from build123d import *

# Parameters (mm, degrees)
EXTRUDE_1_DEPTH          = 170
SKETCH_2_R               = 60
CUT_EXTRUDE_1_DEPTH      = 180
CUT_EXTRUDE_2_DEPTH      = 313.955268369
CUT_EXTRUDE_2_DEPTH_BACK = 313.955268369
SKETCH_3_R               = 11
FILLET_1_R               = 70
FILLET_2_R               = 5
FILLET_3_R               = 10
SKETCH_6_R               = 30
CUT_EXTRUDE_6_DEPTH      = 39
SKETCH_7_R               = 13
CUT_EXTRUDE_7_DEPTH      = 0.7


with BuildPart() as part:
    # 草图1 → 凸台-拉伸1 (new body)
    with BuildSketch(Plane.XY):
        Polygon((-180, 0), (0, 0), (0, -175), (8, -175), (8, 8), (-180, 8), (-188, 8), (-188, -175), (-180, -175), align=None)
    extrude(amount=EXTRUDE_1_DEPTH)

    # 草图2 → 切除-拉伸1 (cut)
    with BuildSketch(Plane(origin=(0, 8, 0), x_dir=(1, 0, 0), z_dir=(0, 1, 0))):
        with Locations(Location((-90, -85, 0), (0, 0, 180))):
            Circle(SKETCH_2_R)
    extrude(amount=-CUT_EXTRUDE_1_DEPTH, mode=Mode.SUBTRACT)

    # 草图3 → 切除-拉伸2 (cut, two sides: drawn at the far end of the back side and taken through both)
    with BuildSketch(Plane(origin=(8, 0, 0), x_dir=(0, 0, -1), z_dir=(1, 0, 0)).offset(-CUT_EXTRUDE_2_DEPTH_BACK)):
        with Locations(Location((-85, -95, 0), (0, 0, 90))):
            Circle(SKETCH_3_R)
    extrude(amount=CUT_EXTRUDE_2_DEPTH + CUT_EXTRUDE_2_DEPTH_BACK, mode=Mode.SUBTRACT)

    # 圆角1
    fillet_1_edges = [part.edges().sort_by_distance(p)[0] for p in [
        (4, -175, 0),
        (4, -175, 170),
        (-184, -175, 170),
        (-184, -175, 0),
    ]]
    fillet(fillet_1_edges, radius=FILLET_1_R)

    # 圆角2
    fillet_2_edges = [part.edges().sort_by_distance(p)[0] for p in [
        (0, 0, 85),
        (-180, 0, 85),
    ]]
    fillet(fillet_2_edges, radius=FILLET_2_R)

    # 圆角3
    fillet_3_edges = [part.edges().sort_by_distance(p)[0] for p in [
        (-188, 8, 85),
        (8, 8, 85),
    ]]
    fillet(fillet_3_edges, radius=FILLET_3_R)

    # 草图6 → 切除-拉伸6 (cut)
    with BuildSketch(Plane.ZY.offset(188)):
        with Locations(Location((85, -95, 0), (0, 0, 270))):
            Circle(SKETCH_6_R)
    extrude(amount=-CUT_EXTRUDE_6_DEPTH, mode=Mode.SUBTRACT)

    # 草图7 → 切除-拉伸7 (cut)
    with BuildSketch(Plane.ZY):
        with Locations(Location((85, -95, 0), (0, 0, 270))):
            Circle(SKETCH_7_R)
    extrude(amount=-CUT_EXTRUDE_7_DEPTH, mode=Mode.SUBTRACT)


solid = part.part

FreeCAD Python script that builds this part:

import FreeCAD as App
import Part
import Sketcher

V = App.Vector
Q = App.Units.Quantity


def edges_at(feature, points):
    """Names of the edges that pass closest to the given points."""
    edges = feature.Shape.Edges
    near = lambda p: min(range(len(edges)), key=lambda i: edges[i].distToShape(Part.Vertex(*p))[0])
    return sorted({f"Edge{near(p) + 1}" for p in points})


def add_polygon(sketch, points):
    """Adds a closed chain of lines whose ends are joined by coincident constraints."""
    first, n = sketch.GeometryCount, len(points)
    for a, b in zip(points, points[1:] + points[:1]):
        sketch.addGeometry(Part.LineSegment(App.Vector(*a, 0), App.Vector(*b, 0)), False)
    for i in range(n):
        sketch.addConstraint(Sketcher.Constraint("Coincident", first + i, 2, first + (i + 1) % n, 1))

doc = App.newDocument("Part")
params = doc.addObject("Spreadsheet::Sheet", "Params")
for row, (alias, value) in enumerate([
    ("sketch1_width", "180 mm"),
    ("sketch1_width2", "8 mm"),
    ("sketch1_height", "175 mm"),
    ("sketch1_height2", "183 mm"),
    ("pad1_length", "170 mm"),
    ("sketch2_diameter", "120 mm"),
    ("pocket1_length", "180 mm"),
    ("sketch3_diameter", "22 mm"),
    ("fillet_radius", "70 mm"),
    ("fillet2_radius", "5 mm"),
    ("fillet3_radius", "10 mm"),
    ("sketch4_diameter", "60 mm"),
    ("pocket3_length", "39 mm"),
    ("sketch5_diameter", "26 mm"),
    ("pocket4_length", "0.7 mm"),
], start=1):
    params.set(f"A{row}", alias)
    params.set(f"B{row}", "=" + value)
    params.setAlias(f"B{row}", alias)

body = doc.addObject("PartDesign::Body", "Body")

# Sketch on XY plane
sketch1 = doc.addObject("Sketcher::SketchObject", "Sketch")
body.addObject(sketch1)
sketch1.AttachmentSupport = (doc.XY_Plane, [""])
sketch1.MapMode = "FlatFace"
add_polygon(sketch1, [(-180, 0), (0, 0), (0, -175), (8, -175), (8, 8), (-188, 8), (-188, -175), (-180, -175)])  # lines 0-7
sketch1.addConstraint([
    Sketcher.Constraint("Horizontal", 0),
    Sketcher.Constraint("Vertical", 1),
    Sketcher.Constraint("Horizontal", 2),
    Sketcher.Constraint("Vertical", 3),
    Sketcher.Constraint("Horizontal", 4),
    Sketcher.Constraint("Vertical", 5),
    Sketcher.Constraint("Horizontal", 6),
    Sketcher.Constraint("Vertical", 7),
    Sketcher.Constraint("Coincident", 0, 2, -1, 1),
    Sketcher.Constraint("Horizontal", 2, 2, 5, 2),
    Sketcher.Constraint("Equal", 2, 6),
    Sketcher.Constraint("DistanceX", 0, 1, 0, 2, Q("180 mm")),
    Sketcher.Constraint("DistanceX", 2, 1, 2, 2, Q("8 mm")),
    Sketcher.Constraint("DistanceY", 1, 2, 1, 1, Q("175 mm")),
    Sketcher.Constraint("DistanceY", 3, 1, 3, 2, Q("183 mm")),
])
sketch1.setExpression("Constraints[19]", "Params.sketch1_width")
sketch1.setExpression("Constraints[20]", "Params.sketch1_width2")
sketch1.setExpression("Constraints[21]", "Params.sketch1_height")
sketch1.setExpression("Constraints[22]", "Params.sketch1_height2")
pad1 = doc.addObject("PartDesign::Pad", "Pad")
body.addObject(pad1)
pad1.Profile = sketch1
pad1.setExpression("Length", "Params.pad1_length")

# Sketch on XZ plane
sketch2 = doc.addObject("Sketcher::SketchObject", "Sketch001")
body.addObject(sketch2)
sketch2.AttachmentSupport = (doc.XZ_Plane, [""])
sketch2.MapMode = "FlatFace"
sketch2.AttachmentOffset = App.Placement(V(0, 0, -8), App.Rotation())
sketch2.addGeometry(Part.Circle(V(-90, 85, 0), V(0, 0, 1), 60), False)
sketch2.addConstraint([
    Sketcher.Constraint("Diameter", 0, Q("120 mm")),
    Sketcher.Constraint("DistanceX", 0, 3, -1, 1, Q("90 mm")),
    Sketcher.Constraint("DistanceY", -1, 1, 0, 3, Q("85 mm")),
])
sketch2.setExpression("Constraints[0]", "Params.sketch2_diameter")
pocket1 = doc.addObject("PartDesign::Pocket", "Pocket")
body.addObject(pocket1)
pocket1.Profile = sketch2
pocket1.setExpression("Length", "Params.pocket1_length")
pocket1.Reversed = True

# Sketch on YZ plane
sketch3 = doc.addObject("Sketcher::SketchObject", "Sketch002")
body.addObject(sketch3)
sketch3.AttachmentSupport = (doc.YZ_Plane, [""])
sketch3.MapMode = "FlatFace"
sketch3.AttachmentOffset = App.Placement(V(0, 0, 8), App.Rotation())
sketch3.addGeometry(Part.Circle(V(-95, 85, 0), V(0, 0, 1), 11), False)
sketch3.addConstraint([
    Sketcher.Constraint("Diameter", 0, Q("22 mm")),
    Sketcher.Constraint("DistanceX", 0, 3, -1, 1, Q("95 mm")),
    Sketcher.Constraint("DistanceY", -1, 1, 0, 3, Q("85 mm")),
])
sketch3.setExpression("Constraints[0]", "Params.sketch3_diameter")
pocket2 = doc.addObject("PartDesign::Pocket", "Pocket001")
body.addObject(pocket2)
pocket2.Profile = sketch3
pocket2.Type = "ThroughAll"
pocket2.Midplane = True
doc.recompute()

fillet = doc.addObject("PartDesign::Fillet", "Fillet")
body.addObject(fillet)
fillet.Base = (pocket2, edges_at(pocket2, [
    (4, -175, 0),
    (4, -175, 170),
    (-184, -175, 170),
    (-184, -175, 0),
]))
fillet.setExpression("Radius", "Params.fillet_radius")
doc.recompute()

fillet2 = doc.addObject("PartDesign::Fillet", "Fillet001")
body.addObject(fillet2)
fillet2.Base = (fillet, edges_at(fillet, [(0, 0, 85), (-180, 0, 85)]))
fillet2.setExpression("Radius", "Params.fillet2_radius")
doc.recompute()

fillet3 = doc.addObject("PartDesign::Fillet", "Fillet002")
body.addObject(fillet3)
fillet3.Base = (fillet2, edges_at(fillet2, [(-188, 8, 85), (8, 8, 85)]))
fillet3.setExpression("Radius", "Params.fillet3_radius")

# Sketch on YZ plane
sketch4 = doc.addObject("Sketcher::SketchObject", "Sketch003")
body.addObject(sketch4)
sketch4.AttachmentSupport = (doc.YZ_Plane, [""])
sketch4.MapMode = "FlatFace"
sketch4.AttachmentOffset = App.Placement(V(0, 0, -188), App.Rotation())
sketch4.addGeometry(Part.Circle(V(-95, 85, 0), V(0, 0, 1), 30), False)
sketch4.addConstraint([
    Sketcher.Constraint("Diameter", 0, Q("60 mm")),
    Sketcher.Constraint("DistanceX", 0, 3, -1, 1, Q("95 mm")),
    Sketcher.Constraint("DistanceY", -1, 1, 0, 3, Q("85 mm")),
])
sketch4.setExpression("Constraints[0]", "Params.sketch4_diameter")
pocket3 = doc.addObject("PartDesign::Pocket", "Pocket002")
body.addObject(pocket3)
pocket3.Profile = sketch4
pocket3.setExpression("Length", "Params.pocket3_length")
pocket3.Reversed = True

# Sketch on YZ plane
sketch5 = doc.addObject("Sketcher::SketchObject", "Sketch004")
body.addObject(sketch5)
sketch5.AttachmentSupport = (doc.YZ_Plane, [""])
sketch5.MapMode = "FlatFace"
sketch5.addGeometry(Part.Circle(V(-95, 85, 0), V(0, 0, 1), 13), False)
sketch5.addConstraint([
    Sketcher.Constraint("Diameter", 0, Q("26 mm")),
    Sketcher.Constraint("DistanceX", 0, 3, -1, 1, Q("95 mm")),
    Sketcher.Constraint("DistanceY", -1, 1, 0, 3, Q("85 mm")),
])
sketch5.setExpression("Constraints[0]", "Params.sketch5_diameter")
pocket4 = doc.addObject("PartDesign::Pocket", "Pocket003")
body.addObject(pocket4)
pocket4.Profile = sketch5
pocket4.setExpression("Length", "Params.pocket4_length")
pocket4.Reversed = True

doc.recompute()
